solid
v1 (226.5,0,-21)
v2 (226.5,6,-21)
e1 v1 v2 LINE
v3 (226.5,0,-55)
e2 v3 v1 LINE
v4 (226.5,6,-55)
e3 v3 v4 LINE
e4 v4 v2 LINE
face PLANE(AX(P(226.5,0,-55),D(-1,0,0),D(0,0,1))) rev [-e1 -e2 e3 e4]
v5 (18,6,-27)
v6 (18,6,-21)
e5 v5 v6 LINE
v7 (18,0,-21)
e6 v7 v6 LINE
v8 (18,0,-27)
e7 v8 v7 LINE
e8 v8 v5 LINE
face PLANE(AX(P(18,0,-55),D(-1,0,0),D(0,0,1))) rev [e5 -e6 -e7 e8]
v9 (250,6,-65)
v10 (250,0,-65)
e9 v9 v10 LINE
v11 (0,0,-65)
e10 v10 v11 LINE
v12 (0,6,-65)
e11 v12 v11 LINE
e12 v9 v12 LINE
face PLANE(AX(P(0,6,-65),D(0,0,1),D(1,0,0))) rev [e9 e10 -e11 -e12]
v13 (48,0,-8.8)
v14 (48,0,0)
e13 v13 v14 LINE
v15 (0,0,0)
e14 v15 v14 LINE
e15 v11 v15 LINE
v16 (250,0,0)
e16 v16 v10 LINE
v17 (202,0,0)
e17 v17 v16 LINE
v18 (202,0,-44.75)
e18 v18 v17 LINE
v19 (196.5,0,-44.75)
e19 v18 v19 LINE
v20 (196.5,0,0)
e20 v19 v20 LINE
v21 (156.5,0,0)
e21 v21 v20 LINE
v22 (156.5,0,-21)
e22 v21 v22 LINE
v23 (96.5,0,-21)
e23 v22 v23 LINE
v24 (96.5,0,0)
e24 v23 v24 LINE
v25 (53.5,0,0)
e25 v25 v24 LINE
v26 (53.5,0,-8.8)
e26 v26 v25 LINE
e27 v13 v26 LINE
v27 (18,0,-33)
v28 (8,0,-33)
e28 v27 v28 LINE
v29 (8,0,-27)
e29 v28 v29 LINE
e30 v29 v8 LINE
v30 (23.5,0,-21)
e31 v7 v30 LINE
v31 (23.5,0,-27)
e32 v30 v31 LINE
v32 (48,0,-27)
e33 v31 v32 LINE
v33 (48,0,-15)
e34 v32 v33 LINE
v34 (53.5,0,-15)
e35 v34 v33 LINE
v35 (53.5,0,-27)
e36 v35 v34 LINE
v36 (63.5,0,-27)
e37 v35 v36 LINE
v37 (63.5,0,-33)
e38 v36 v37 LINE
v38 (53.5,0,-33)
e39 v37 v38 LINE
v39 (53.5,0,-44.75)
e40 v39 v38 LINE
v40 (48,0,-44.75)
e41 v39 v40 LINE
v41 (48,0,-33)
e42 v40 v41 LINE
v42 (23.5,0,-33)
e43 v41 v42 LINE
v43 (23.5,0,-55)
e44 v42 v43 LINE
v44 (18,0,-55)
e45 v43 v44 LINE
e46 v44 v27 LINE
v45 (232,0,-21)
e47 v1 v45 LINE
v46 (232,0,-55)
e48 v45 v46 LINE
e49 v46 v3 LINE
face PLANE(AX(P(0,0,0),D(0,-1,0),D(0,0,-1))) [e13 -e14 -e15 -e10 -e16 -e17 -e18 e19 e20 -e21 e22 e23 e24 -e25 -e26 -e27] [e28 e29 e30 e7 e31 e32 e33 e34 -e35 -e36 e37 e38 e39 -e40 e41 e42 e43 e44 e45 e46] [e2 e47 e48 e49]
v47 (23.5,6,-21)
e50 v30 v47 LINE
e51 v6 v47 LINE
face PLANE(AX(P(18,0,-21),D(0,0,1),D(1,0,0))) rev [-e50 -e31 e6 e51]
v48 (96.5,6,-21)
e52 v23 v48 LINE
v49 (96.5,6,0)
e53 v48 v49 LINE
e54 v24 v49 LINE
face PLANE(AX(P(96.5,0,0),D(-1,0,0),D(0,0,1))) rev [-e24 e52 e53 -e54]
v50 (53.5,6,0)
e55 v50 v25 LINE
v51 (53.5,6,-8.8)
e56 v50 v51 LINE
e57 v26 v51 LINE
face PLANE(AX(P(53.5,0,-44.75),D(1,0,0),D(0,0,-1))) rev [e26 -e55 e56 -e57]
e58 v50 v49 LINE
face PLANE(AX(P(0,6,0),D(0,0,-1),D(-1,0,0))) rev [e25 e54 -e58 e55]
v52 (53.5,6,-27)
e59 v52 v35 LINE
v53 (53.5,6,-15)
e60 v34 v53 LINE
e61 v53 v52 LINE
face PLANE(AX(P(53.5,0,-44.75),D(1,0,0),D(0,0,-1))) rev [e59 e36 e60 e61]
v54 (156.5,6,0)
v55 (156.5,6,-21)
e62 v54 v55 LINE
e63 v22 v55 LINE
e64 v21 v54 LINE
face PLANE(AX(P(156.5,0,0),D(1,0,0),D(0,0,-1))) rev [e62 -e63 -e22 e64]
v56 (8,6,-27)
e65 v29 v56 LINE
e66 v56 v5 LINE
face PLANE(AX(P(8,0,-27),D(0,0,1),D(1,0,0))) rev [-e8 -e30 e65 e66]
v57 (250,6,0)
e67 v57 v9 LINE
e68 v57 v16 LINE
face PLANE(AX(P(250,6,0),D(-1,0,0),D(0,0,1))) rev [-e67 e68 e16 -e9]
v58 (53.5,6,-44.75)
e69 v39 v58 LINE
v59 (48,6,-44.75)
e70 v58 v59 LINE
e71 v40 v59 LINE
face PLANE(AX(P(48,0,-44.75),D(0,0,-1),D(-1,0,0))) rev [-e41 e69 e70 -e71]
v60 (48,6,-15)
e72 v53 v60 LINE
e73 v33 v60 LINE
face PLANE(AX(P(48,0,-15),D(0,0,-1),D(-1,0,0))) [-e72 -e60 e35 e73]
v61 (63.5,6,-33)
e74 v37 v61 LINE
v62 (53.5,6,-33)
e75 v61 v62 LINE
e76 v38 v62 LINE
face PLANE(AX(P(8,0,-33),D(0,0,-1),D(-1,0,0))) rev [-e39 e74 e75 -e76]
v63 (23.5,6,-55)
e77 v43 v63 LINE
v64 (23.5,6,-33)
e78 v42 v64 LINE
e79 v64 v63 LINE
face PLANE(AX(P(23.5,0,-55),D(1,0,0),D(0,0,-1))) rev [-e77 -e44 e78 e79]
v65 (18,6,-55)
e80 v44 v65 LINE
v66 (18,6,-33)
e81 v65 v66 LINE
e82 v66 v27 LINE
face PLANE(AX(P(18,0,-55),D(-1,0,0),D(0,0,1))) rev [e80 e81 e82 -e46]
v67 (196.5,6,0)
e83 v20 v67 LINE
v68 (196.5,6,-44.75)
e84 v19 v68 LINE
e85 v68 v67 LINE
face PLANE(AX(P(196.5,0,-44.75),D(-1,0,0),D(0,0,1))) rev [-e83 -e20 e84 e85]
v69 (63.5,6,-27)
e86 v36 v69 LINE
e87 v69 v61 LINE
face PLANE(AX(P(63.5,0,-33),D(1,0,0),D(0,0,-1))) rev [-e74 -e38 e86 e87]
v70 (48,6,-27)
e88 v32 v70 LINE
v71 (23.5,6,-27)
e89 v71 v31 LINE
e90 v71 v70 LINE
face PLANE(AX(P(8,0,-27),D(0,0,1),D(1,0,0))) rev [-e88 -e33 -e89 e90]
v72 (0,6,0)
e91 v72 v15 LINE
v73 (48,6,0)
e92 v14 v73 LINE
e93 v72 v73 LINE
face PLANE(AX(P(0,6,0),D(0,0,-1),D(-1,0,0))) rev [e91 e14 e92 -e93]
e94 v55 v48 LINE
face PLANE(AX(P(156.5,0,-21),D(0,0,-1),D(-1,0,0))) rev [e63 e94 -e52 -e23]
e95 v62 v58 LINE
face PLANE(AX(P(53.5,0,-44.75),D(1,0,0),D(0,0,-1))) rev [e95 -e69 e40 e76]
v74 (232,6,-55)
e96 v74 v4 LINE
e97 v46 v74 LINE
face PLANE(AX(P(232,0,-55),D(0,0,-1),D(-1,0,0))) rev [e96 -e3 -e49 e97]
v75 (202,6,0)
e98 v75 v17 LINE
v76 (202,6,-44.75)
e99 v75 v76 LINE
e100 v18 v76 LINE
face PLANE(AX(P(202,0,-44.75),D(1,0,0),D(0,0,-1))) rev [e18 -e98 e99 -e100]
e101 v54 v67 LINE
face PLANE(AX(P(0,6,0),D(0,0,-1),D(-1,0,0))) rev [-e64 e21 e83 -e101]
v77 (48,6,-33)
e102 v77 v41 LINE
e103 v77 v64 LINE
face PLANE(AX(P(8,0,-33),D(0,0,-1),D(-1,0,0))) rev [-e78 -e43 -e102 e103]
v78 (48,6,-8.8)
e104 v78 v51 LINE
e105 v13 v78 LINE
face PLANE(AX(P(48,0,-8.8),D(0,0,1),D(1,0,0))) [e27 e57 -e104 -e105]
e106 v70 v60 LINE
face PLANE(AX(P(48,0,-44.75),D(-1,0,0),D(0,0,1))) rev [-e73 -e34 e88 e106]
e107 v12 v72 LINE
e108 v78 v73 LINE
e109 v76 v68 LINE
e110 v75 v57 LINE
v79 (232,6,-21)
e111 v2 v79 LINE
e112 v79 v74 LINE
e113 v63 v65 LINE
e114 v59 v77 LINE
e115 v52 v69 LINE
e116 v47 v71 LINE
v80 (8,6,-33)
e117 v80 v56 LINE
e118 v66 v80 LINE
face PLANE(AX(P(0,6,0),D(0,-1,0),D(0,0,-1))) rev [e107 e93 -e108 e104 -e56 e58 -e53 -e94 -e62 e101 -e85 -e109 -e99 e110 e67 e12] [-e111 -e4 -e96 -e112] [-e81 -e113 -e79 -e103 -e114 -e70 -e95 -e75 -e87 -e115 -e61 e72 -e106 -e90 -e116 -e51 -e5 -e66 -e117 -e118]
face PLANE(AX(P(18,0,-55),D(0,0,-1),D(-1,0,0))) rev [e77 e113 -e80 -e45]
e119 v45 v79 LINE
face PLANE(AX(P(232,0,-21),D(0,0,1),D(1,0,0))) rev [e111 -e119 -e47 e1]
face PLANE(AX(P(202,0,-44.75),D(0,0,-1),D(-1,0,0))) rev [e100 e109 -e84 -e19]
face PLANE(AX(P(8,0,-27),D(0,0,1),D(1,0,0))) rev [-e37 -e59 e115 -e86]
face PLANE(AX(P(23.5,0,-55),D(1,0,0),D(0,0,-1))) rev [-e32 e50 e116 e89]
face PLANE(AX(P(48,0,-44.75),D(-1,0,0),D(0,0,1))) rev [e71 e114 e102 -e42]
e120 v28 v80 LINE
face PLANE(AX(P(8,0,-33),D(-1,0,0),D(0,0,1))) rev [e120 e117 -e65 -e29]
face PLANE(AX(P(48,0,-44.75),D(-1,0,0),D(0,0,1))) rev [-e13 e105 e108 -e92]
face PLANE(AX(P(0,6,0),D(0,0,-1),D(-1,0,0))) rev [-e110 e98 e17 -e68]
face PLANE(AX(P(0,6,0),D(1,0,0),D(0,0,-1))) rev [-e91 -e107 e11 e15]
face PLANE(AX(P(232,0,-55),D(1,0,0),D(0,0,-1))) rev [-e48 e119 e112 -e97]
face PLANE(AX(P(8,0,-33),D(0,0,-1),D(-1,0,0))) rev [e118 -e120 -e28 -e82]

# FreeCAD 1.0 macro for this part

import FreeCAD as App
import Part
import Sketcher

V = App.Vector
Q = App.Units.Quantity

doc = App.newDocument("Part")
body = doc.addObject("PartDesign::Body", "Body")

sketch1 = body.newObject("Sketcher::SketchObject", "Sketch")
sketch1.AttachmentSupport = (doc.getObject("XZ_Plane"), [""])
sketch1.MapMode = "FlatFace"
sketch1.addGeometry([
    Part.LineSegment(V(0, -65, 0), V(0, 0, 0)),
    Part.LineSegment(V(0, 0, 0), V(250, 0, 0)),
    Part.LineSegment(V(250, 0, 0), V(250, -65, 0)),
    Part.LineSegment(V(250, -65, 0), V(0, -65, 0)),
], False)
sketch1.addConstraint([
    Sketcher.Constraint("Coincident", 0, 2, 1, 1),
    Sketcher.Constraint("Coincident", 1, 2, 2, 1),
    Sketcher.Constraint("Coincident", 2, 2, 3, 1),
    Sketcher.Constraint("Coincident", 3, 2, 0, 1),
    Sketcher.Constraint("Vertical", 0),
    Sketcher.Constraint("Horizontal", 1),
    Sketcher.Constraint("Vertical", 2),
    Sketcher.Constraint("Horizontal", 3),
    Sketcher.Constraint("Coincident", 0, 2, -1, 1),
    Sketcher.Constraint("DistanceX", 1, 1, 1, 2, Q("250 mm")),
    Sketcher.Constraint("DistanceY", 0, 1, 0, 2, Q("65 mm")),
])
pad1 = body.newObject("PartDesign::Pad", "Pad")
pad1.Profile = sketch1
pad1.Length = 6
pad1.Reversed = True

sketch2 = body.newObject("Sketcher::SketchObject", "Sketch001")
sketch2.AttachmentSupport = (doc.getObject("XZ_Plane"), [""])
sketch2.MapMode = "FlatFace"
sketch2.AttachmentOffset = App.Placement(V(0, 0, -6), App.Rotation())
sketch2.addGeometry([
    Part.LineSegment(V(18, -55, 0), V(18, -21, 0)),
    Part.LineSegment(V(18, -21, 0), V(23.5, -21, 0)),
    Part.LineSegment(V(23.5, -21, 0), V(23.5, -55, 0)),
    Part.LineSegment(V(23.5, -55, 0), V(18, -55, 0)),
    Part.LineSegment(V(48, -44.75, 0), V(48, 2.75, 0)),
    Part.LineSegment(V(48, 2.75, 0), V(53.5, 2.75, 0)),
    Part.LineSegment(V(53.5, 2.75, 0), V(53.5, -44.75, 0)),
    Part.LineSegment(V(53.5, -44.75, 0), V(48, -44.75, 0)),
    Part.LineSegment(V(196.5, -44.75, 0), V(196.5, 2.75, 0)),
    Part.LineSegment(V(196.5, 2.75, 0), V(202, 2.75, 0)),
    Part.LineSegment(V(202, 2.75, 0), V(202, -44.75, 0)),
    Part.LineSegment(V(202, -44.75, 0), V(196.5, -44.75, 0)),
    Part.LineSegment(V(226.5, -55, 0), V(226.5, -21, 0)),
    Part.LineSegment(V(226.5, -21, 0), V(232, -21, 0)),
    Part.LineSegment(V(232, -21, 0), V(232, -55, 0)),
    Part.LineSegment(V(232, -55, 0), V(226.5, -55, 0)),
], False)
sketch2.addConstraint([
    Sketcher.Constraint("Coincident", 0, 2, 1, 1),
    Sketcher.Constraint("Coincident", 1, 2, 2, 1),
    Sketcher.Constraint("Coincident", 2, 2, 3, 1),
    Sketcher.Constraint("Coincident", 3, 2, 0, 1),
    Sketcher.Constraint("Coincident", 4, 2, 5, 1),
    Sketcher.Constraint("Coincident", 5, 2, 6, 1),
    Sketcher.Constraint("Coincident", 6, 2, 7, 1),
    Sketcher.Constraint("Coincident", 7, 2, 4, 1),
    Sketcher.Constraint("Coincident", 8, 2, 9, 1),
    Sketcher.Constraint("Coincident", 9, 2, 10, 1),
    Sketcher.Constraint("Coincident", 10, 2, 11, 1),
    Sketcher.Constraint("Coincident", 11, 2, 8, 1),
    Sketcher.Constraint("Coincident", 12, 2, 13, 1),
    Sketcher.Constraint("Coincident", 13, 2, 14, 1),
    Sketcher.Constraint("Coincident", 14, 2, 15, 1),
    Sketcher.Constraint("Coincident", 15, 2, 12, 1),
    Sketcher.Constraint("Vertical", 0),
    Sketcher.Constraint("Horizontal", 1),
    Sketcher.Constraint("Vertical", 2),
    Sketcher.Constraint("Horizontal", 3),
    Sketcher.Constraint("Vertical", 4),
    Sketcher.Constraint("Horizontal", 5),
    Sketcher.Constraint("Vertical", 6),
    Sketcher.Constraint("Horizontal", 7),
    Sketcher.Constraint("Vertical", 8),
    Sketcher.Constraint("Horizontal", 9),
    Sketcher.Constraint("Vertical", 10),
    Sketcher.Constraint("Horizontal", 11),
    Sketcher.Constraint("Vertical", 12),
    Sketcher.Constraint("Horizontal", 13),
    Sketcher.Constraint("Vertical", 14),
    Sketcher.Constraint("Horizontal", 15),
    Sketcher.Constraint("Horizontal", 5, 2, 8, 2),
    Sketcher.Constraint("Horizontal", 7, 2, 10, 2),
    Sketcher.Constraint("Horizontal", 1, 2, 12, 2),
    Sketcher.Constraint("Horizontal", 3, 2, 14, 2),
    Sketcher.Constraint("Equal", 3, 5),
    Sketcher.Constraint("Equal", 7, 9),
    Sketcher.Constraint("Equal", 11, 13),
    Sketcher.Constraint("DistanceY", 0, 1, 0, 2, Q("34 mm")),
    Sketcher.Constraint("DistanceX", 1, 1, 1, 2, Q("5.5 mm")),
    Sketcher.Constraint("DistanceY", 4, 1, 4, 2, Q("47.5 mm")),
    Sketcher.Constraint("DistanceX", -1, 1, 0, 2, Q("18 mm")),
    Sketcher.Constraint("DistanceY", 0, 2, -1, 1, Q("21 mm")),
    Sketcher.Constraint("DistanceX", -1, 1, 4, 2, Q("48 mm")),
    Sketcher.Constraint("DistanceX", -1, 1, 9, 2, Q("202 mm")),
    Sketcher.Constraint("DistanceX", -1, 1, 13, 2, Q("232 mm")),
    Sketcher.Constraint("DistanceY", -1, 1, 4, 2, Q("2.75 mm")),
])
pocket1 = body.newObject("PartDesign::Pocket", "Pocket")
pocket1.Profile = sketch2
pocket1.Type = "ThroughAll"
pocket1.Reversed = True

sketch3 = body.newObject("Sketcher::SketchObject", "Sketch002")
sketch3.AttachmentSupport = (doc.getObject("XZ_Plane"), [""])
sketch3.MapMode = "FlatFace"
sketch3.AttachmentOffset = App.Placement(V(0, 0, -6), App.Rotation())
sketch3.addGeometry([
    Part.LineSegment(V(96.5, -21, 0), V(96.5, 0, 0)),
    Part.LineSegment(V(96.5, 0, 0), V(156.5, 0, 0)),
    Part.LineSegment(V(156.5, 0, 0), V(156.5, -21, 0)),
    Part.LineSegment(V(156.5, -21, 0), V(96.5, -21, 0)),
], False)
sketch3.addConstraint([
    Sketcher.Constraint("Coincident", 0, 2, 1, 1),
    Sketcher.Constraint("Coincident", 1, 2, 2, 1),
    Sketcher.Constraint("Coincident", 2, 2, 3, 1),
    Sketcher.Constraint("Coincident", 3, 2, 0, 1),
    Sketcher.Constraint("Vertical", 0),
    Sketcher.Constraint("Horizontal", 1),
    Sketcher.Constraint("Vertical", 2),
    Sketcher.Constraint("Horizontal", 3),
    Sketcher.Constraint("PointOnObject", 0, 2, -1),
    Sketcher.Constraint("DistanceX", 1, 1, 1, 2, Q("60 mm")),
    Sketcher.Constraint("DistanceY", 0, 1, 0, 2, Q("21 mm")),
    Sketcher.Constraint("DistanceX", -1, 1, 0, 2, Q("96.5 mm")),
])
pocket2 = body.newObject("PartDesign::Pocket", "Pocket001")
pocket2.Profile = sketch3
pocket2.Type = "ThroughAll"
pocket2.Reversed = True

sketch4 = body.newObject("Sketcher::SketchObject", "Sketch003")
sketch4.AttachmentSupport = (doc.getObject("XZ_Plane"), [""])
sketch4.MapMode = "FlatFace"
sketch4.AttachmentOffset = App.Placement(V(0, 0, -6), App.Rotation())
sketch4.addGeometry([
    Part.LineSegment(V(8, -33, 0), V(8, -27, 0)),
    Part.LineSegment(V(8, -27, 0), V(63.5, -27, 0)),
    Part.LineSegment(V(63.5, -27, 0), V(63.5, -33, 0)),
    Part.LineSegment(V(63.5, -33, 0), V(8, -33, 0)),
], False)
sketch4.addConstraint([
    Sketcher.Constraint("Coincident", 0, 2, 1, 1),
    Sketcher.Constraint("Coincident", 1, 2, 2, 1),
    Sketcher.Constraint("Coincident", 2, 2, 3, 1),
    Sketcher.Constraint("Coincident", 3, 2, 0, 1),
    Sketcher.Constraint("Vertical", 0),
    Sketcher.Constraint("Horizontal", 1),
    Sketcher.Constraint("Vertical", 2),
    Sketcher.Constraint("Horizontal", 3),
    Sketcher.Constraint("DistanceY", 0, 1, 0, 2, Q("6 mm")),
    Sketcher.Constraint("DistanceX", 1, 1, 1, 2, Q("55.5 mm")),
    Sketcher.Constraint("DistanceX", -1, 1, 0, 2, Q("8 mm")),
    Sketcher.Constraint("DistanceY", 0, 2, -1, 1, Q("27 mm")),
])
pocket3 = body.newObject("PartDesign::Pocket", "Pocket002")
pocket3.Profile = sketch4
pocket3.Type = "ThroughAll"
pocket3.Reversed = True

sketch5 = body.newObject("Sketcher::SketchObject", "Sketch004")
sketch5.AttachmentSupport = (doc.getObject("XZ_Plane"), [""])
sketch5.MapMode = "FlatFace"
sketch5.AttachmentOffset = App.Placement(V(0, 0, -6), App.Rotation())
sketch5.addGeometry([
    Part.LineSegment(V(48, -15, 0), V(48, -8.8, 0)),
    Part.LineSegment(V(48, -8.8, 0), V(53.5, -8.8, 0)),
    Part.LineSegment(V(53.5, -8.8, 0), V(53.5, -15, 0)),
    Part.LineSegment(V(53.5, -15, 0), V(48, -15, 0)),
], False)
sketch5.addConstraint([
    Sketcher.Constraint("Coincident", 0, 2, 1, 1),
    Sketcher.Constraint("Coincident", 1, 2, 2, 1),
    Sketcher.Constraint("Coincident", 2, 2, 3, 1),
    Sketcher.Constraint("Coincident", 3, 2, 0, 1),
    Sketcher.Constraint("Vertical", 0),
    Sketcher.Constraint("Horizontal", 1),
    Sketcher.Constraint("Vertical", 2),
    Sketcher.Constraint("Horizontal", 3),
    Sketcher.Constraint("DistanceX", 1, 1, 1, 2, Q("5.5 mm")),
    Sketcher.Constraint("DistanceY", 0, 1, 0, 2, Q("6.2 mm")),
    Sketcher.Constraint("DistanceX", -1, 1, 0, 2, Q("48 mm")),
    Sketcher.Constraint("DistanceY", 2, 2, -1, 1, Q("15 mm")),
])
pad2 = body.newObject("PartDesign::Pad", "Pad001")
pad2.Profile = sketch5
pad2.Length = 6

doc.recompute()
